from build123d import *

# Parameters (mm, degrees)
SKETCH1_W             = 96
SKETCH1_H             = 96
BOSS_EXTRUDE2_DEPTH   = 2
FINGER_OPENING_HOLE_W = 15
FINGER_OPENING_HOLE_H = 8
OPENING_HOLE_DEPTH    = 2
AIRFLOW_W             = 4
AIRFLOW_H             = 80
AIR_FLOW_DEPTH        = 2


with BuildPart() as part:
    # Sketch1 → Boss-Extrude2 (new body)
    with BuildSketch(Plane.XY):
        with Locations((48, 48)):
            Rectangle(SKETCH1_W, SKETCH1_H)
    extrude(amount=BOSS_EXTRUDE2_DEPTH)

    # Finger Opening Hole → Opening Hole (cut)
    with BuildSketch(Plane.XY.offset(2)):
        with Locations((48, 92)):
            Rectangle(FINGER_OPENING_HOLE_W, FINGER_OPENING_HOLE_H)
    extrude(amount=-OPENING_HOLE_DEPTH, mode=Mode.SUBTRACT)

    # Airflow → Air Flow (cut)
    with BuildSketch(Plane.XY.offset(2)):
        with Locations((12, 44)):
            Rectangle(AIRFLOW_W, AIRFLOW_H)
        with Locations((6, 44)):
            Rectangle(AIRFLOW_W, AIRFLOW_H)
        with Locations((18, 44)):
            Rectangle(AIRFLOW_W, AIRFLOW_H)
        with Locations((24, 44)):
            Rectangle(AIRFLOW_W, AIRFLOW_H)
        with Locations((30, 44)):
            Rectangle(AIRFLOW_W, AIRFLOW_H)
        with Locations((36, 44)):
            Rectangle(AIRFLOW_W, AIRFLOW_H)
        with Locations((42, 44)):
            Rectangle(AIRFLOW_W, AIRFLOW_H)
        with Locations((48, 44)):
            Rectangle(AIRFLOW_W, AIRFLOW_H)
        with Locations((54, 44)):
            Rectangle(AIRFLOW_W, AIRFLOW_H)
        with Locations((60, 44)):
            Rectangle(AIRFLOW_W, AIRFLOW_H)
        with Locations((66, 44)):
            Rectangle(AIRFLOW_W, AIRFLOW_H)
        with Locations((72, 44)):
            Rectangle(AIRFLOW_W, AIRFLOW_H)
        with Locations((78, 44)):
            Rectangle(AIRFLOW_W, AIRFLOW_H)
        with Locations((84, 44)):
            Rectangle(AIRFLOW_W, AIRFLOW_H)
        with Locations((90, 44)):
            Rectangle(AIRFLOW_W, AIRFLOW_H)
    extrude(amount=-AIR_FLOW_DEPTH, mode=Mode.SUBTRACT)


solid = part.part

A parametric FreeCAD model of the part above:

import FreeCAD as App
import Part
import Sketcher

V = App.Vector
Q = App.Units.Quantity

doc = App.newDocument("Part")
body = doc.addObject("PartDesign::Body", "Body")

sketch1 = doc.addObject("Sketcher::SketchObject", "Sketch")
body.addObject(sketch1)
sketch1.AttachmentSupport = (doc.XY_Plane, [""])
sketch1.MapMode = "FlatFace"
sketch1.addGeometry([
    Part.LineSegment(V(0, 96, 0), V(0, 0, 0)),
    Part.LineSegment(V(0, 0, 0), V(96, 0, 0)),
    Part.LineSegment(V(96, 0, 0), V(96, 96, 0)),
    Part.LineSegment(V(96, 96, 0), V(0, 96, 0)),
], False)
sketch1.addConstraint([
    Sketcher.Constraint("Coincident", 0, 2, 1, 1),
    Sketcher.Constraint("Coincident", 1, 2, 2, 1),
    Sketcher.Constraint("Coincident", 2, 2, 3, 1),
    Sketcher.Constraint("Coincident", 3, 2, 0, 1),
    Sketcher.Constraint("Vertical", 0),
    Sketcher.Constraint("Horizontal", 1),
    Sketcher.Constraint("Vertical", 2),
    Sketcher.Constraint("Horizontal", 3),
    Sketcher.Constraint("Coincident", 0, 2, -1, 1),
    Sketcher.Constraint("Equal", 3, 0),
    Sketcher.Constraint("DistanceX", 1, 1, 1, 2, Q("96 mm")),
])
pad1 = doc.addObject("PartDesign::Pad", "Pad")
body.addObject(pad1)
pad1.Profile = sketch1
pad1.Length = 2

sketch2 = doc.addObject("Sketcher::SketchObject", "Sketch001")
body.addObject(sketch2)
sketch2.AttachmentSupport = (doc.XY_Plane, [""])
sketch2.MapMode = "FlatFace"
sketch2.AttachmentOffset = App.Placement(V(0, 0, 2), App.Rotation())
sketch2.addGeometry([
    Part.LineSegment(V(40, 96, 0), V(40, 88, 0)),
    Part.LineSegment(V(40, 88, 0), V(56, 88, 0)),
    Part.LineSegment(V(56, 88, 0), V(56, 96, 0)),
    Part.LineSegment(V(56, 96, 0), V(40, 96, 0)),
], False)
sketch2.addConstraint([
    Sketcher.Constraint("Coincident", 0, 2, 1, 1),
    Sketcher.Constraint("Coincident", 1, 2, 2, 1),
    Sketcher.Constraint("Coincident", 2, 2, 3, 1),
    Sketcher.Constraint("Coincident", 3, 2, 0, 1),
    Sketcher.Constraint("Vertical", 0),
    Sketcher.Constraint("Horizontal", 1),
    Sketcher.Constraint("Vertical", 2),
    Sketcher.Constraint("Horizontal", 3),
    Sketcher.Constraint("DistanceX", 1, 1, 1, 2, Q("15 mm")),
    Sketcher.Constraint("DistanceY", 0, 2, 0, 1, Q("8 mm")),
    Sketcher.Constraint("DistanceY", -1, 1, 0, 2, Q("88 mm")),
    Sketcher.Constraint("DistanceX", -1, 1, 0, 2, Q("40.5 mm")),
])
pocket1 = doc.addObject("PartDesign::Pocket", "Pocket")
body.addObject(pocket1)
pocket1.Profile = sketch2
pocket1.Length = 2

sketch3 = doc.addObject("Sketcher::SketchObject", "Sketch002")
body.addObject(sketch3)
sketch3.AttachmentSupport = (doc.XY_Plane, [""])
sketch3.MapMode = "FlatFace"
sketch3.AttachmentOffset = App.Placement(V(0, 0, 2), App.Rotation())
sketch3.addGeometry([
    Part.LineSegment(V(10, 84, 0), V(10, 4, 0)),
    Part.LineSegment(V(10, 4, 0), V(14, 4, 0)),
    Part.LineSegment(V(14, 4, 0), V(14, 84, 0)),
    Part.LineSegment(V(14, 84, 0), V(10, 84, 0)),
    Part.LineSegment(V(4, 84, 0), V(4, 4, 0)),
    Part.LineSegment(V(4, 4, 0), V(8, 4, 0)),
    Part.LineSegment(V(8, 4, 0), V(8, 84, 0)),
    Part.LineSegment(V(8, 84, 0), V(4, 84, 0)),
    Part.LineSegment(V(16, 84, 0), V(16, 4, 0)),
    Part.LineSegment(V(16, 4, 0), V(20, 4, 0)),
    Part.LineSegment(V(20, 4, 0), V(20, 84, 0)),
    Part.LineSegment(V(20, 84, 0), V(16, 84, 0)),
    Part.LineSegment(V(22, 84, 0), V(22, 4, 0)),
    Part.LineSegment(V(22, 4, 0), V(26, 4, 0)),
    Part.LineSegment(V(26, 4, 0), V(26, 84, 0)),
    Part.LineSegment(V(26, 84, 0), V(22, 84, 0)),
    Part.LineSegment(V(28, 84, 0), V(28, 4, 0)),
    Part.LineSegment(V(28, 4, 0), V(32, 4, 0)),
    Part.LineSegment(V(32, 4, 0), V(32, 84, 0)),
    Part.LineSegment(V(32, 84, 0), V(28, 84, 0)),
    Part.LineSegment(V(34, 84, 0), V(34, 4, 0)),
    Part.LineSegment(V(34, 4, 0), V(38, 4, 0)),
    Part.LineSegment(V(38, 4, 0), V(38, 84, 0)),
    Part.LineSegment(V(38, 84, 0), V(34, 84, 0)),
    Part.LineSegment(V(40, 84, 0), V(40, 4, 0)),
    Part.LineSegment(V(40, 4, 0), V(44, 4, 0)),
    Part.LineSegment(V(44, 4, 0), V(44, 84, 0)),
    Part.LineSegment(V(44, 84, 0), V(40, 84, 0)),
    Part.LineSegment(V(46, 84, 0), V(46, 4, 0)),
    Part.LineSegment(V(46, 4, 0), V(50, 4, 0)),
    Part.LineSegment(V(50, 4, 0), V(50, 84, 0)),
    Part.LineSegment(V(50, 84, 0), V(46, 84, 0)),
    Part.LineSegment(V(52, 84, 0), V(52, 4, 0)),
    Part.LineSegment(V(52, 4, 0), V(56, 4, 0)),
    Part.LineSegment(V(56, 4, 0), V(56, 84, 0)),
    Part.LineSegment(V(56, 84, 0), V(52, 84, 0)),
    Part.LineSegment(V(58, 84, 0), V(58, 4, 0)),
    Part.LineSegment(V(58, 4, 0), V(62, 4, 0)),
    Part.LineSegment(V(62, 4, 0), V(62, 84, 0)),
    Part.LineSegment(V(62, 84, 0), V(58, 84, 0)),
    Part.LineSegment(V(64, 84, 0), V(64, 4, 0)),
    Part.LineSegment(V(64, 4, 0), V(68, 4, 0)),
    Part.LineSegment(V(68, 4, 0), V(68, 84, 0)),
    Part.LineSegment(V(68, 84, 0), V(64, 84, 0)),
    Part.LineSegment(V(70, 84, 0), V(70, 4, 0)),
    Part.LineSegment(V(70, 4, 0), V(74, 4, 0)),
    Part.LineSegment(V(74, 4, 0), V(74, 84, 0)),
    Part.LineSegment(V(74, 84, 0), V(70, 84, 0)),
    Part.LineSegment(V(76, 84, 0), V(76, 4, 0)),
    Part.LineSegment(V(76, 4, 0), V(80, 4, 0)),
    Part.LineSegment(V(80, 4, 0), V(80, 84, 0)),
    Part.LineSegment(V(80, 84, 0), V(76, 84, 0)),
    Part.LineSegment(V(82, 84, 0), V(82, 4, 0)),
    Part.LineSegment(V(82, 4, 0), V(86, 4, 0)),
    Part.LineSegment(V(86, 4, 0), V(86, 84, 0)),
    Part.LineSegment(V(86, 84, 0), V(82, 84, 0)),
    Part.LineSegment(V(88, 84, 0), V(88, 4, 0)),
    Part.LineSegment(V(88, 4, 0), V(92, 4, 0)),
    Part.LineSegment(V(92, 4, 0), V(92, 84, 0)),
    Part.LineSegment(V(92, 84, 0), V(88, 84, 0)),
], False)
sketch3.addConstraint([
    Sketcher.Constraint("Coincident", 0, 2, 1, 1),
    Sketcher.Constraint("Coincident", 1, 2, 2, 1),
    Sketcher.Constraint("Coincident", 2, 2, 3, 1),
    Sketcher.Constraint("Coincident", 3, 2, 0, 1),
    Sketcher.Constraint("Coincident", 4, 2, 5, 1),
    Sketcher.Constraint("Coincident", 5, 2, 6, 1),
    Sketcher.Constraint("Coincident", 6, 2, 7, 1),
    Sketcher.Constraint("Coincident", 7, 2, 4, 1),
    Sketcher.Constraint("Coincident", 8, 2, 9, 1),
    Sketcher.Constraint("Coincident", 9, 2, 10, 1),
    Sketcher.Constraint("Coincident", 10, 2, 11, 1),
    Sketcher.Constraint("Coincident", 11, 2, 8, 1),
    Sketcher.Constraint("Coincident", 12, 2, 13, 1),
    Sketcher.Constraint("Coincident", 13, 2, 14, 1),
    Sketcher.Constraint("Coincident", 14, 2, 15, 1),
    Sketcher.Constraint("Coincident", 15, 2, 12, 1),
    Sketcher.Constraint("Coincident", 16, 2, 17, 1),
    Sketcher.Constraint("Coincident", 17, 2, 18, 1),
    Sketcher.Constraint("Coincident", 18, 2, 19, 1),
    Sketcher.Constraint("Coincident", 19, 2, 16, 1),
    Sketcher.Constraint("Coincident", 20, 2, 21, 1),
    Sketcher.Constraint("Coincident", 21, 2, 22, 1),
    Sketcher.Constraint("Coincident", 22, 2, 23, 1),
    Sketcher.Constraint("Coincident", 23, 2, 20, 1),
    Sketcher.Constraint("Coincident", 24, 2, 25, 1),
    Sketcher.Constraint("Coincident", 25, 2, 26, 1),
    Sketcher.Constraint("Coincident", 26, 2, 27, 1),
    Sketcher.Constraint("Coincident", 27, 2, 24, 1),
    Sketcher.Constraint("Coincident", 28, 2, 29, 1),
    Sketcher.Constraint("Coincident", 29, 2, 30, 1),
    Sketcher.Constraint("Coincident", 30, 2, 31, 1),
    Sketcher.Constraint("Coincident", 31, 2, 28, 1),
    Sketcher.Constraint("Coincident", 32, 2, 33, 1),
    Sketcher.Constraint("Coincident", 33, 2, 34, 1),
    Sketcher.Constraint("Coincident", 34, 2, 35, 1),
    Sketcher.Constraint("Coincident", 35, 2, 32, 1),
    Sketcher.Constraint("Coincident", 36, 2, 37, 1),
    Sketcher.Constraint("Coincident", 37, 2, 38, 1),
    Sketcher.Constraint("Coincident", 38, 2, 39, 1),
    Sketcher.Constraint("Coincident", 39, 2, 36, 1),
    Sketcher.Constraint("Coincident", 40, 2, 41, 1),
    Sketcher.Constraint("Coincident", 41, 2, 42, 1),
    Sketcher.Constraint("Coincident", 42, 2, 43, 1),
    Sketcher.Constraint("Coincident", 43, 2, 40, 1),
    Sketcher.Constraint("Coincident", 44, 2, 45, 1),
    Sketcher.Constraint("Coincident", 45, 2, 46, 1),
    Sketcher.Constraint("Coincident", 46, 2, 47, 1),
    Sketcher.Constraint("Coincident", 47, 2, 44, 1),
    Sketcher.Constraint("Coincident", 48, 2, 49, 1),
    Sketcher.Constraint("Coincident", 49, 2, 50, 1),
    Sketcher.Constraint("Coincident", 50, 2, 51, 1),
    Sketcher.Constraint("Coincident", 51, 2, 48, 1),
    Sketcher.Constraint("Coincident", 52, 2, 53, 1),
    Sketcher.Constraint("Coincident", 53, 2, 54, 1),
    Sketcher.Constraint("Coincident", 54, 2, 55, 1),
    Sketcher.Constraint("Coincident", 55, 2, 52, 1),
    Sketcher.Constraint("Coincident", 56, 2, 57, 1),
    Sketcher.Constraint("Coincident", 57, 2, 58, 1),
    Sketcher.Constraint("Coincident", 58, 2, 59, 1),
    Sketcher.Constraint("Coincident", 59, 2, 56, 1),
    Sketcher.Constraint("Vertical", 0),
    Sketcher.Constraint("Horizontal", 1),
    Sketcher.Constraint("Vertical", 2),
    Sketcher.Constraint("Horizontal", 3),
    Sketcher.Constraint("Vertical", 4),
    Sketcher.Constraint("Horizontal", 5),
    Sketcher.Constraint("Vertical", 6),
    Sketcher.Constraint("Horizontal", 7),
    Sketcher.Constraint("Vertical", 8),
    Sketcher.Constraint("Horizontal", 9),
    Sketcher.Constraint("Vertical", 10),
    Sketcher.Constraint("Horizontal", 11),
    Sketcher.Constraint("Vertical", 12),
    Sketcher.Constraint("Horizontal", 13),
    Sketcher.Constraint("Vertical", 14),
    Sketcher.Constraint("Horizontal", 15),
    Sketcher.Constraint("Vertical", 16),
    Sketcher.Constraint("Horizontal", 17),
    Sketcher.Constraint("Vertical", 18),
    Sketcher.Constraint("Horizontal", 19),
    Sketcher.Constraint("Vertical", 20),
    Sketcher.Constraint("Horizontal", 21),
    Sketcher.Constraint("Vertical", 22),
    Sketcher.Constraint("Horizontal", 23),
    Sketcher.Constraint("Vertical", 24),
    Sketcher.Constraint("Horizontal", 25),
    Sketcher.Constraint("Vertical", 26),
    Sketcher.Constraint("Horizontal", 27),
    Sketcher.Constraint("Vertical", 28),
    Sketcher.Constraint("Horizontal", 29),
    Sketcher.Constraint("Vertical", 30),
    Sketcher.Constraint("Horizontal", 31),
    Sketcher.Constraint("Vertical", 32),
    Sketcher.Constraint("Horizontal", 33),
    Sketcher.Constraint("Vertical", 34),
    Sketcher.Constraint("Horizontal", 35),
    Sketcher.Constraint("Vertical", 36),
    Sketcher.Constraint("Horizontal", 37),
    Sketcher.Constraint("Vertical", 38),
    Sketcher.Constraint("Horizontal", 39),
    Sketcher.Constraint("Vertical", 40),
    Sketcher.Constraint("Horizontal", 41),
    Sketcher.Constraint("Vertical", 42),
    Sketcher.Constraint("Horizontal", 43),
    Sketcher.Constraint("Vertical", 44),
    Sketcher.Constraint("Horizontal", 45),
    Sketcher.Constraint("Vertical", 46),
    Sketcher.Constraint("Horizontal", 47),
    Sketcher.Constraint("Vertical", 48),
    Sketcher.Constraint("Horizontal", 49),
    Sketcher.Constraint("Vertical", 50),
    Sketcher.Constraint("Horizontal", 51),
    Sketcher.Constraint("Vertical", 52),
    Sketcher.Constraint("Horizontal", 53),
    Sketcher.Constraint("Vertical", 54),
    Sketcher.Constraint("Horizontal", 55),
    Sketcher.Constraint("Vertical", 56),
    Sketcher.Constraint("Horizontal", 57),
    Sketcher.Constraint("Vertical", 58),
    Sketcher.Constraint("Horizontal", 59),
    Sketcher.Constraint("Horizontal", 1, 2, 4, 2),
    Sketcher.Constraint("Horizontal", 3, 2, 6, 2),
    Sketcher.Constraint("Horizontal", 5, 2, 8, 2),
    Sketcher.Constraint("Horizontal", 7, 2, 10, 2),
    Sketcher.Constraint("Horizontal", 9, 2, 12, 2),
    Sketcher.Constraint("Horizontal", 11, 2, 14, 2),
    Sketcher.Constraint("Horizontal", 13, 2, 16, 2),
    Sketcher.Constraint("Horizontal", 15, 2, 18, 2),
    Sketcher.Constraint("Horizontal", 17, 2, 20, 2),
    Sketcher.Constraint("Horizontal", 19, 2, 22, 2),
    Sketcher.Constraint("Horizontal", 21, 2, 24, 2),
    Sketcher.Constraint("Horizontal", 23, 2, 26, 2),
    Sketcher.Constraint("Horizontal", 25, 2, 28, 2),
    Sketcher.Constraint("Horizontal", 27, 2, 30, 2),
    Sketcher.Constraint("Horizontal", 29, 2, 32, 2),
    Sketcher.Constraint("Horizontal", 31, 2, 34, 2),
    Sketcher.Constraint("Horizontal", 33, 2, 36, 2),
    Sketcher.Constraint("Horizontal", 35, 2, 38, 2),
    Sketcher.Constraint("Horizontal", 37, 2, 40, 2),
    Sketcher.Constraint("Horizontal", 39, 2, 42, 2),
    Sketcher.Constraint("Horizontal", 41, 2, 44, 2),
    Sketcher.Constraint("Horizontal", 43, 2, 46, 2),
    Sketcher.Constraint("Horizontal", 45, 2, 48, 2),
    Sketcher.Constraint("Horizontal", 47, 2, 50, 2),
    Sketcher.Constraint("Horizontal", 49, 2, 52, 2),
    Sketcher.Constraint("Horizontal", 51, 2, 54, 2),
    Sketcher.Constraint("Horizontal", 53, 2, 56, 2),
    Sketcher.Constraint("Horizontal", 55, 2, 58, 2),
    Sketcher.Constraint("Equal", 3, 5),
    Sketcher.Constraint("Equal", 7, 9),
    Sketcher.Constraint("Equal", 11, 13),
    Sketcher.Constraint("Equal", 15, 17),
    Sketcher.Constraint("Equal", 19, 21),
    Sketcher.Constraint("Equal", 23, 25),
    Sketcher.Constraint("Equal", 27, 29),
    Sketcher.Constraint("Equal", 31, 33),
    Sketcher.Constraint("Equal", 35, 37),
    Sketcher.Constraint("Equal", 39, 41),
    Sketcher.Constraint("Equal", 43, 45),
    Sketcher.Constraint("Equal", 47, 49),
    Sketcher.Constraint("Equal", 51, 53),
    Sketcher.Constraint("Equal", 55, 57),
    Sketcher.Constraint("DistanceX", 1, 1, 1, 2, Q("4 mm")),
    Sketcher.Constraint("DistanceY", 0, 2, 0, 1, Q("80 mm")),
    Sketcher.Constraint("DistanceX", -1, 1, 0, 2, Q("10 mm")),
    Sketcher.Constraint("DistanceY", -1, 1, 0, 2, Q("4 mm")),
    Sketcher.Constraint("DistanceX", -1, 1, 4, 2, Q("4 mm")),
    Sketcher.Constraint("DistanceX", -1, 1, 8, 2, Q("16 mm")),
    Sketcher.Constraint("DistanceX", -1, 1, 12, 2, Q("22 mm")),
    Sketcher.Constraint("DistanceX", -1, 1, 16, 2, Q("28 mm")),
    Sketcher.Constraint("DistanceX", -1, 1, 20, 2, Q("34 mm")),
    Sketcher.Constraint("DistanceX", -1, 1, 24, 2, Q("40 mm")),
    Sketcher.Constraint("DistanceX", -1, 1, 28, 2, Q("46 mm")),
    Sketcher.Constraint("DistanceX", -1, 1, 32, 2, Q("52 mm")),
    Sketcher.Constraint("DistanceX", -1, 1, 36, 2, Q("58 mm")),
    Sketcher.Constraint("DistanceX", -1, 1, 40, 2, Q("64 mm")),
    Sketcher.Constraint("DistanceX", -1, 1, 44, 2, Q("70 mm")),
    Sketcher.Constraint("DistanceX", -1, 1, 48, 2, Q("76 mm")),
    Sketcher.Constraint("DistanceX", -1, 1, 52, 2, Q("82 mm")),
    Sketcher.Constraint("DistanceX", -1, 1, 56, 2, Q("88 mm")),
])
pocket2 = doc.addObject("PartDesign::Pocket", "Pocket001")
body.addObject(pocket2)
pocket2.Profile = sketch3
pocket2.Length = 2

doc.recompute()
